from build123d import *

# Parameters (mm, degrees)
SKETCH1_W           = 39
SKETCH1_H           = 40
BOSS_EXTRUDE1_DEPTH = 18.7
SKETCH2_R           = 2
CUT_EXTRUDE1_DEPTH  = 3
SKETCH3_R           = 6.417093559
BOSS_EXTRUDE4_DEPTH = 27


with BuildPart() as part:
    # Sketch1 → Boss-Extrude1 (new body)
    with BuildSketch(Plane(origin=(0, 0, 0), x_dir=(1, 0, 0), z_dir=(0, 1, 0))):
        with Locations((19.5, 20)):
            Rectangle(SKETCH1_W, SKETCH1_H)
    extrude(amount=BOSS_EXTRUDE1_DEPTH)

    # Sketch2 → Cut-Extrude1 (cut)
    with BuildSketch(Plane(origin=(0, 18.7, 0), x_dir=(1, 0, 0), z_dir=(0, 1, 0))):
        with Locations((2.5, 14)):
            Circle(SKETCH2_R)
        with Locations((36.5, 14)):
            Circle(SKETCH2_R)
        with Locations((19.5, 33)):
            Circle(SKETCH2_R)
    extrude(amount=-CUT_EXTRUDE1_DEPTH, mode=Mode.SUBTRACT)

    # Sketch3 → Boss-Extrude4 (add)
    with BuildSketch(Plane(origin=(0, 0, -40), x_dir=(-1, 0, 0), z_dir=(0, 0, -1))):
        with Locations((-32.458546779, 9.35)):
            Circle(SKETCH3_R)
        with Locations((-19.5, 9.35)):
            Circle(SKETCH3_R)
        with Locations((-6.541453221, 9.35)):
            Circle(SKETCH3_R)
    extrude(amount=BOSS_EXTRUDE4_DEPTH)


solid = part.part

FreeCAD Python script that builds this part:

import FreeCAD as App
import Part
import Sketcher
Q = App.Units.Quantity

doc = App.newDocument("Part")
params = doc.addObject("Spreadsheet::Sheet", "Params")
for row, (alias, value) in enumerate([
    ("sketch1_width", "39 mm"),
    ("sketch1_height", "40 mm"),
    ("pad1_length", "18.7 mm"),
    ("sketch2_diameter", "4 mm"),
    ("pocket1_length", "3 mm"),
    ("pad2_length", "27 mm"),
], start=1):
    params.set(f"A{row}", alias)
    params.set(f"B{row}", "=" + value)
    params.setAlias(f"B{row}", alias)

body = doc.addObject("PartDesign::Body", "Body")

# Sketch on XZ plane
sketch1 = body.newObject("Sketcher::SketchObject", "Sketch")
sketch1.AttachmentSupport = (doc.getObject("XZ_Plane"), [""])
sketch1.MapMode = "FlatFace"
sketch1.addGeometry(Part.LineSegment(App.Vector(0, -40, 0), App.Vector(0, 0, 0)), False)
sketch1.addGeometry(Part.LineSegment(App.Vector(0, 0, 0), App.Vector(39, 0, 0)), False)
sketch1.addGeometry(Part.LineSegment(App.Vector(39, 0, 0), App.Vector(39, -40, 0)), False)
sketch1.addGeometry(Part.LineSegment(App.Vector(39, -40, 0), App.Vector(0, -40, 0)), False)
sketch1.addConstraint(Sketcher.Constraint("Coincident", 0, 2, 1, 1))
sketch1.addConstraint(Sketcher.Constraint("Coincident", 1, 2, 2, 1))
sketch1.addConstraint(Sketcher.Constraint("Coincident", 2, 2, 3, 1))
sketch1.addConstraint(Sketcher.Constraint("Coincident", 3, 2, 0, 1))
sketch1.addConstraint(Sketcher.Constraint("Vertical", 0))
sketch1.addConstraint(Sketcher.Constraint("Horizontal", 1))
sketch1.addConstraint(Sketcher.Constraint("Vertical", 2))
sketch1.addConstraint(Sketcher.Constraint("Horizontal", 3))
sketch1.addConstraint(Sketcher.Constraint("Coincident", 0, 2, -1, 1))
sketch1.addConstraint(Sketcher.Constraint("DistanceX", 1, 1, 1, 2, Q("39 mm")))
sketch1.addConstraint(Sketcher.Constraint("DistanceY", 0, 1, 0, 2, Q("40 mm")))
sketch1.setExpression("Constraints[9]", "Params.sketch1_width")
sketch1.setExpression("Constraints[10]", "Params.sketch1_height")
pad1 = body.newObject("PartDesign::Pad", "Pad")
pad1.Profile = sketch1
pad1.setExpression("Length", "Params.pad1_length")
pad1.Reversed = True

# Sketch on XZ plane
sketch2 = body.newObject("Sketcher::SketchObject", "Sketch001")
sketch2.AttachmentSupport = (doc.getObject("XZ_Plane"), [""])
sketch2.MapMode = "FlatFace"
sketch2.AttachmentOffset = App.Placement(App.Vector(0, 0, -18.7), App.Rotation())
sketch2.addGeometry(Part.Circle(App.Vector(2.5, -14, 0), App.Vector(0, 0, 1), 2), False)
sketch2.addGeometry(Part.Circle(App.Vector(36.5, -14, 0), App.Vector(0, 0, 1), 2), False)
sketch2.addGeometry(Part.Circle(App.Vector(19.5, -33, 0), App.Vector(0, 0, 1), 2), False)
sketch2.addConstraint(Sketcher.Constraint("Equal", 0, 1))
sketch2.addConstraint(Sketcher.Constraint("Equal", 1, 2))
sketch2.addConstraint(Sketcher.Constraint("Horizontal", 0, 3, 1, 3))
sketch2.addConstraint(Sketcher.Constraint("Diameter", 0, Q("4 mm")))
sketch2.addConstraint(Sketcher.Constraint("DistanceY", 0, 3, -1, 1, Q("14 mm")))
sketch2.addConstraint(Sketcher.Constraint("DistanceY", 2, 3, -1, 1, Q("33 mm")))
sketch2.addConstraint(Sketcher.Constraint("DistanceX", 0, 3, 1, 3, Q("34 mm")))
sketch2.addConstraint(Sketcher.Constraint("DistanceX", 0, 3, 2, 3, Q("17 mm")))
sketch2.addConstraint(Sketcher.Constraint("DistanceX", -1, 1, 0, 3, Q("2.5 mm")))
sketch2.setExpression("Constraints[3]", "Params.sketch2_diameter")
pocket1 = body.newObject("PartDesign::Pocket", "Pocket")
pocket1.Profile = sketch2
pocket1.setExpression("Length", "Params.pocket1_length")
pocket1.Reversed = True

# Sketch on XY plane
sketch3 = body.newObject("Sketcher::SketchObject", "Sketch002")
sketch3.AttachmentSupport = (doc.getObject("XY_Plane"), [""])
sketch3.MapMode = "FlatFace"
sketch3.AttachmentOffset = App.Placement(App.Vector(0, 0, -40), App.Rotation())
sketch3.addGeometry(Part.Circle(App.Vector(32, 9, 0), App.Vector(0, 0, 1), 6), False)
sketch3.addGeometry(Part.Circle(App.Vector(20, 9, 0), App.Vector(0, 0, 1), 6), False)
sketch3.addGeometry(Part.Circle(App.Vector(7, 9, 0), App.Vector(0, 0, 1), 6), False)
sketch3.addConstraint(Sketcher.Constraint("Equal", 0, 1))
sketch3.addConstraint(Sketcher.Constraint("Equal", 1, 2))
sketch3.addConstraint(Sketcher.Constraint("Horizontal", 0, 3, 1, 3))
sketch3.addConstraint(Sketcher.Constraint("Horizontal", 1, 3, 2, 3))
sketch3.addConstraint(Sketcher.Constraint("DistanceX", -1, 1, 1, 3, Q("19.5 mm")))
sketch3.addConstraint(Sketcher.Constraint("DistanceY", -1, 1, 0, 3, Q("9.35 mm")))
sketch3.addConstraint(Sketcher.Constraint("Diameter", 0, Q("12.834187 mm")))
sketch3.addConstraint(Sketcher.Constraint("DistanceX", -1, 1, 0, 3, Q("32.458547 mm")))
sketch3.addConstraint(Sketcher.Constraint("DistanceX", -1, 1, 2, 3, Q("6.541453 mm")))
pad2 = body.newObject("PartDesign::Pad", "Pad001")
pad2.Profile = sketch3
pad2.setExpression("Length", "Params.pad2_length")
pad2.Reversed = True

doc.recompute()
